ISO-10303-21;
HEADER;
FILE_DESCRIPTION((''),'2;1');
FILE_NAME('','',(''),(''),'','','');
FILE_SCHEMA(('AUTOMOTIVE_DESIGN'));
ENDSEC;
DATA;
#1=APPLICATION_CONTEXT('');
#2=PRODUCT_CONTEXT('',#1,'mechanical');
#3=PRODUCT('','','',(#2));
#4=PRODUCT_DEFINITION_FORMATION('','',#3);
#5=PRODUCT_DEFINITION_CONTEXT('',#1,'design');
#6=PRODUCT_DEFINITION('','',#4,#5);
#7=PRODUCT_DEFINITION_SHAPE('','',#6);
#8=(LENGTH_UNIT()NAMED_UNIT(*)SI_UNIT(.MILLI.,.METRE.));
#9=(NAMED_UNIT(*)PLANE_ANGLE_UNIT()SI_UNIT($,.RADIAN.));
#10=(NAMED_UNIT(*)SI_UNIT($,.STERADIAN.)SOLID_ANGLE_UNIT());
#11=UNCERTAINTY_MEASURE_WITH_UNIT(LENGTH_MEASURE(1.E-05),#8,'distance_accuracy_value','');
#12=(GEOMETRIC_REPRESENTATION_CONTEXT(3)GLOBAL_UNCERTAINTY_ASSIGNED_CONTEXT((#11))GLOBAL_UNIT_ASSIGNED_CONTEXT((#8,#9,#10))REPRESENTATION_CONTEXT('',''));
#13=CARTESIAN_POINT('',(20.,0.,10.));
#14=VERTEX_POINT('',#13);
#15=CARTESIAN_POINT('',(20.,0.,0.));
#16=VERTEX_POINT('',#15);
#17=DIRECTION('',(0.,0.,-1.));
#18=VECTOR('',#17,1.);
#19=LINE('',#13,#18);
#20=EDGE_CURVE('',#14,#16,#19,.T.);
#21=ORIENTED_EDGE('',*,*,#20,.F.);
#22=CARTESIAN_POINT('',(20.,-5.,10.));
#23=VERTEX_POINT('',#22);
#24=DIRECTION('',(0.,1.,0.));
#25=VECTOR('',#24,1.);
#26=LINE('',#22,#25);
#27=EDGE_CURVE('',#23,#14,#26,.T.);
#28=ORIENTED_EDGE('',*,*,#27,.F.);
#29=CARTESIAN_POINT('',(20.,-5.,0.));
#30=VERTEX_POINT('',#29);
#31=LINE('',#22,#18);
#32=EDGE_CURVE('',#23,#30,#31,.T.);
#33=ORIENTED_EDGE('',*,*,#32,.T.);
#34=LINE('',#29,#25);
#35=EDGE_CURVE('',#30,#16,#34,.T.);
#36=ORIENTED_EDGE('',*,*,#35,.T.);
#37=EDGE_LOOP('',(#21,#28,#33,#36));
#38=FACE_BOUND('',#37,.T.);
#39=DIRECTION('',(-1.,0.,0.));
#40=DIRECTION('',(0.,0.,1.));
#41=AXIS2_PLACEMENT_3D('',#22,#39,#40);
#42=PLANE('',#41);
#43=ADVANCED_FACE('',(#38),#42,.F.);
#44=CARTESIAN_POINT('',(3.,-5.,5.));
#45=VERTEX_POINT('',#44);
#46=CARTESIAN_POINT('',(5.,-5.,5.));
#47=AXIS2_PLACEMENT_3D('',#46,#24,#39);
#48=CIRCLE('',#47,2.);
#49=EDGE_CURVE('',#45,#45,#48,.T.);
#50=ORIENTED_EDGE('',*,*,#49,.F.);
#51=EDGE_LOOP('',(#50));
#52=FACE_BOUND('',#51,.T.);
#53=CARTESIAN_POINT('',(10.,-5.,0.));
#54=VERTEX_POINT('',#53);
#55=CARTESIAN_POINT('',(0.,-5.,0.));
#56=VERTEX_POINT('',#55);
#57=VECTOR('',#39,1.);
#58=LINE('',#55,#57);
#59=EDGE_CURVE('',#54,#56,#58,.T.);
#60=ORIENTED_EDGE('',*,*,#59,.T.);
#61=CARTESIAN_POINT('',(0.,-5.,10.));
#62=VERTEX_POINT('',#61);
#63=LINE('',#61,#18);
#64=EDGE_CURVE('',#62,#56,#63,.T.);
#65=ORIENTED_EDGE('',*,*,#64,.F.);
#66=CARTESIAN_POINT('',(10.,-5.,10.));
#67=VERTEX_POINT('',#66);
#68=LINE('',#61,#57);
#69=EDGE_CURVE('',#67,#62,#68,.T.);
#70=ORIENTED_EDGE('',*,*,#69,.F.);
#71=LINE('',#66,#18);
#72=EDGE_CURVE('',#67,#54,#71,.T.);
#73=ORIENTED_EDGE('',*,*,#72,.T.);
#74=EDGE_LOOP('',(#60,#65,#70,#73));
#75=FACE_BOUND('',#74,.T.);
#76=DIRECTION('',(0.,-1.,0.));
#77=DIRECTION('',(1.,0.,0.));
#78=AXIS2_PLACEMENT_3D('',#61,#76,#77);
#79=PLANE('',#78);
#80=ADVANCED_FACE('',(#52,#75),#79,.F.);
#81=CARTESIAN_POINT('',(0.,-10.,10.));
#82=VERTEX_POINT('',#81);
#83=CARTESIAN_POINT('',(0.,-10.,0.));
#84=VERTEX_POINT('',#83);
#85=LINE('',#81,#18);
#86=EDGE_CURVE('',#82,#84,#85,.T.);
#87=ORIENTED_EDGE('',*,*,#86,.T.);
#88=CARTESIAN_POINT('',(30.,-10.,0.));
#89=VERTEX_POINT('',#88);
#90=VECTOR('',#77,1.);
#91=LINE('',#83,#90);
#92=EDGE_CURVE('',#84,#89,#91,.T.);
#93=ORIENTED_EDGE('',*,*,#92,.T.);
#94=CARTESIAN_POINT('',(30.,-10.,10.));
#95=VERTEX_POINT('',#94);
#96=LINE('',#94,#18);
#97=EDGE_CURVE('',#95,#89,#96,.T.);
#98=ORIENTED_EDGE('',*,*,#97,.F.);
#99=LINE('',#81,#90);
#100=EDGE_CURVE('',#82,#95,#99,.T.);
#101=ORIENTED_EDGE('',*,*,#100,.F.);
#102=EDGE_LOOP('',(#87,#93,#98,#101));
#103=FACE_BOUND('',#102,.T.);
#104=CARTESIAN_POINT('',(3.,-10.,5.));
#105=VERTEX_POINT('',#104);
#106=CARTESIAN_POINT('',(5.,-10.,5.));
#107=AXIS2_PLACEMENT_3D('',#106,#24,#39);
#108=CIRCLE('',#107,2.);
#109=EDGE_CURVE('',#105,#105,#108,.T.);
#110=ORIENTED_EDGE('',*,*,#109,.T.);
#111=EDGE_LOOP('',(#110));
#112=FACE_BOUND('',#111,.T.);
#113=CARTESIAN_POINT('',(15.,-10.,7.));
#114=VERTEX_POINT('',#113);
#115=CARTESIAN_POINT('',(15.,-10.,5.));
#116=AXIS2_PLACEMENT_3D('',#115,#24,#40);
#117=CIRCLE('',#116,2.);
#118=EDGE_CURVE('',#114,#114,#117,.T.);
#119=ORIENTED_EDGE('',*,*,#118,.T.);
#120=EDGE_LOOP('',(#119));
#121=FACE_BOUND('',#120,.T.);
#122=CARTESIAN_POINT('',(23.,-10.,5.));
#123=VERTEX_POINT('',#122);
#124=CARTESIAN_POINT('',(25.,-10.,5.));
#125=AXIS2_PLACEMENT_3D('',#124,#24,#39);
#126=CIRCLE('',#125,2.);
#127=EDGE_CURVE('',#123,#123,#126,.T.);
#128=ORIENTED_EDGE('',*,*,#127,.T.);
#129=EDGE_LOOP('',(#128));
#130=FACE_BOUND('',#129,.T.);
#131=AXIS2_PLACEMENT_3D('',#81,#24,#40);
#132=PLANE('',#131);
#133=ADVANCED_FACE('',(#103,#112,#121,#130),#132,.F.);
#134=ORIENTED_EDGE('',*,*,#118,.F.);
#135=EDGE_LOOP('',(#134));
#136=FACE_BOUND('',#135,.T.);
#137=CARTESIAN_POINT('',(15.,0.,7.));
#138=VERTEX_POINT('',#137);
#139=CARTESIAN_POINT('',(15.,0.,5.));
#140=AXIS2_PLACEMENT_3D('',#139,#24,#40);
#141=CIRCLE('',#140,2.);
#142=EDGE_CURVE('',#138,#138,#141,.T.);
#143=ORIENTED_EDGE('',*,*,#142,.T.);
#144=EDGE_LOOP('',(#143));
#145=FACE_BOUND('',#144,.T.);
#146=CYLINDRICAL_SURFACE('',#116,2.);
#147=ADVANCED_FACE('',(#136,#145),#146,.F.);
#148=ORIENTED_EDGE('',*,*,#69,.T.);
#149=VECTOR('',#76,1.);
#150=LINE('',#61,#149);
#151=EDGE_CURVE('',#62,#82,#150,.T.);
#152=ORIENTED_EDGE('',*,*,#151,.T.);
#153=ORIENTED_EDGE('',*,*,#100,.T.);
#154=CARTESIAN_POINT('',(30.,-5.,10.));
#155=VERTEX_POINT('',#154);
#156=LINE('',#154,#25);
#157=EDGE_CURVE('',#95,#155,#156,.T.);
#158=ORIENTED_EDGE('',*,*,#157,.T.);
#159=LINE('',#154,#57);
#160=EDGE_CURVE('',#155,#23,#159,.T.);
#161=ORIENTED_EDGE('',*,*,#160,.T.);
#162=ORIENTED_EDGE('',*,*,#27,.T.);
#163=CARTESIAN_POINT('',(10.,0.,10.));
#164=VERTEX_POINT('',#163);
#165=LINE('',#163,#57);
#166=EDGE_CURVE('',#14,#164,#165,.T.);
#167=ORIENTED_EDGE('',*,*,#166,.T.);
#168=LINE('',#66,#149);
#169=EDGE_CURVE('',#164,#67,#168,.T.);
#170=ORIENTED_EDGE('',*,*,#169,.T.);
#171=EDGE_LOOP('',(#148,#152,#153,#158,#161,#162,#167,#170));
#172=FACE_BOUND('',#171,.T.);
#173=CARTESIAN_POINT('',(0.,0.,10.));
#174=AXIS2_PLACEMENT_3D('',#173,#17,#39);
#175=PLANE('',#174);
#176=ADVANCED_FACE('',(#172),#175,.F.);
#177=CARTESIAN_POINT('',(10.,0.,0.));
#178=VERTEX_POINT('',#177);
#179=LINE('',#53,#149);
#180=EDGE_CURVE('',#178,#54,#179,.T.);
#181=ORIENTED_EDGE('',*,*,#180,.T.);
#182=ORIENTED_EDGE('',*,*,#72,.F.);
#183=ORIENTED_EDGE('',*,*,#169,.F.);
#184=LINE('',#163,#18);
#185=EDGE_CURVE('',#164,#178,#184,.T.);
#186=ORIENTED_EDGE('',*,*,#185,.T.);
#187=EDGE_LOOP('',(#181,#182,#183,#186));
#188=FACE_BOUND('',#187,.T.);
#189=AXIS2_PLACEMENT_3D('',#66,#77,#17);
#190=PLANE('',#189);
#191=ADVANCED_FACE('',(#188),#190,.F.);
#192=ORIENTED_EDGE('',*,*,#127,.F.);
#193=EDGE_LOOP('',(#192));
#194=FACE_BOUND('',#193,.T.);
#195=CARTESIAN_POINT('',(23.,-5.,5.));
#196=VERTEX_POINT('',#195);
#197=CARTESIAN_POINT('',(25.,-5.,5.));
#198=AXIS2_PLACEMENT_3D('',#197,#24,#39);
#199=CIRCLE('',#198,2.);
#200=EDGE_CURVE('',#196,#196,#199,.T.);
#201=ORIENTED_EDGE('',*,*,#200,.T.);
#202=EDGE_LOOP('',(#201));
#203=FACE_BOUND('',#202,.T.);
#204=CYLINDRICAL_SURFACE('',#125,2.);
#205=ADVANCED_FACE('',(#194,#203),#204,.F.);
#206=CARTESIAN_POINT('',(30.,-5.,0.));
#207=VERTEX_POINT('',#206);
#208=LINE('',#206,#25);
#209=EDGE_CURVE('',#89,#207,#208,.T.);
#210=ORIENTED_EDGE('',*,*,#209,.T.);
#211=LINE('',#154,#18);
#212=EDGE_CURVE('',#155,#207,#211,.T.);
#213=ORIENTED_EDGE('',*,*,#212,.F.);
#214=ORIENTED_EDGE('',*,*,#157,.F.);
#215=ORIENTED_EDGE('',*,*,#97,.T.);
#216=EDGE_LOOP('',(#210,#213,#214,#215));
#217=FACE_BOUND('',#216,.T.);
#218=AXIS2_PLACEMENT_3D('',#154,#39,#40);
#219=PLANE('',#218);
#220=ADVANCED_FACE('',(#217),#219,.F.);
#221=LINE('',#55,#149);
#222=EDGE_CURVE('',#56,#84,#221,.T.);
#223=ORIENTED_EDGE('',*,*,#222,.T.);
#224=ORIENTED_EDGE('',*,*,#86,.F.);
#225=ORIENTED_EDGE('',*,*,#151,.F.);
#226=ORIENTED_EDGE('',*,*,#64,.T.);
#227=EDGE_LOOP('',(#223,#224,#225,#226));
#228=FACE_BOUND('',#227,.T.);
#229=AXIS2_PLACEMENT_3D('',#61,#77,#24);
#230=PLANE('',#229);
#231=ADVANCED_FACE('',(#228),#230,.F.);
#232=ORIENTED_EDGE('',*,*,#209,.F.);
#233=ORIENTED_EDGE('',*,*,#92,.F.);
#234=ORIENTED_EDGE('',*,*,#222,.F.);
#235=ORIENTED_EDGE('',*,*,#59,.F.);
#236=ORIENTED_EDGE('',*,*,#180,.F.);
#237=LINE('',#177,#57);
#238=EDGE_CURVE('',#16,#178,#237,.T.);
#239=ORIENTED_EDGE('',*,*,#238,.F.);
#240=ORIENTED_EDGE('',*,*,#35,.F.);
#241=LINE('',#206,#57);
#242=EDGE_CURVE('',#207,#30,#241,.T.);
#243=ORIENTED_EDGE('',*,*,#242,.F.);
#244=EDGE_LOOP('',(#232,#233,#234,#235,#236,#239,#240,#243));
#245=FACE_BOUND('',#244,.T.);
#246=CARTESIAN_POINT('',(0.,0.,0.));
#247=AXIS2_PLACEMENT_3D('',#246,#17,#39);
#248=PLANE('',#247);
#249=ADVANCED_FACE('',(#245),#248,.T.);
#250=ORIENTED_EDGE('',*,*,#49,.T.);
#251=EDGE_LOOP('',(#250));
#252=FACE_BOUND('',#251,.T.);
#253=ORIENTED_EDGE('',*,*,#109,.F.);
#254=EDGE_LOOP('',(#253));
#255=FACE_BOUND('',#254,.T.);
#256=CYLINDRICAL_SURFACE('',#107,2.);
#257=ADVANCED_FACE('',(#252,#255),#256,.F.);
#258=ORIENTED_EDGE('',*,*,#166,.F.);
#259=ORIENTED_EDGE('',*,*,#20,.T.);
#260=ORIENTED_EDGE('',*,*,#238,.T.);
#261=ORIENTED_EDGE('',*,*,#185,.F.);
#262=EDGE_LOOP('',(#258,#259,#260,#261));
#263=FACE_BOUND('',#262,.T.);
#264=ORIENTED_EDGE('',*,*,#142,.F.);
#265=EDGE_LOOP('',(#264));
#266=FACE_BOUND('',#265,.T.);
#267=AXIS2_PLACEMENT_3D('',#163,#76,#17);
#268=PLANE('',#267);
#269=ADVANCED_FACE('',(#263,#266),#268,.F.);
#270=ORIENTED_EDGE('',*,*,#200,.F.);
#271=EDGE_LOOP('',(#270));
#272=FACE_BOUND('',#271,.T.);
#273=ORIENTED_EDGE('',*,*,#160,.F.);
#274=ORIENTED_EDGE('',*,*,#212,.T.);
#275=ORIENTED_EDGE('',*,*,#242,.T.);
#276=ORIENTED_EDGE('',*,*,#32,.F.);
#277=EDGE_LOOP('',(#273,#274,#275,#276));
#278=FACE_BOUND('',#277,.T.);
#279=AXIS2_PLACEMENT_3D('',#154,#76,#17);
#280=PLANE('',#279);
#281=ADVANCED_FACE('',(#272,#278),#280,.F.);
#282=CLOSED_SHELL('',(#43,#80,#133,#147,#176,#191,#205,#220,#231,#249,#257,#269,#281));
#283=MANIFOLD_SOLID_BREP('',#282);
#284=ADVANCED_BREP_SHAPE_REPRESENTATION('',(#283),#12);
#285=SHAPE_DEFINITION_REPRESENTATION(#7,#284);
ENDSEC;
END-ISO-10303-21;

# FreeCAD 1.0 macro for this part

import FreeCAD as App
import Part
import Sketcher
from FreeCAD import Vector
Q = App.Units.Quantity

doc = App.newDocument("Part")
body = doc.addObject("PartDesign::Body", "Body")

sketch1 = body.newObject("Sketcher::SketchObject", "Sketch")
sketch1.AttachmentSupport = (doc.getObject("XY_Plane"), [""])
sketch1.MapMode = "FlatFace"
sketch1.addGeometry(Part.LineSegment(Vector(20, 0, 0), Vector(10, 0, 0)), False)
sketch1.addGeometry(Part.LineSegment(Vector(10, 0, 0), Vector(10, -5, 0)), False)
sketch1.addGeometry(Part.LineSegment(Vector(10, -5, 0), Vector(0, -5, 0)), False)
sketch1.addGeometry(Part.LineSegment(Vector(0, -5, 0), Vector(0, -10, 0)), False)
sketch1.addGeometry(Part.LineSegment(Vector(0, -10, 0), Vector(30, -10, 0)), False)
sketch1.addGeometry(Part.LineSegment(Vector(30, -10, 0), Vector(30, -5, 0)), False)
sketch1.addGeometry(Part.LineSegment(Vector(30, -5, 0), Vector(20, -5, 0)), False)
sketch1.addGeometry(Part.LineSegment(Vector(20, -5, 0), Vector(20, 0, 0)), False)
sketch1.addConstraint(Sketcher.Constraint("Coincident", 0, 2, 1, 1))
sketch1.addConstraint(Sketcher.Constraint("Coincident", 1, 2, 2, 1))
sketch1.addConstraint(Sketcher.Constraint("Coincident", 2, 2, 3, 1))
sketch1.addConstraint(Sketcher.Constraint("Coincident", 3, 2, 4, 1))
sketch1.addConstraint(Sketcher.Constraint("Coincident", 4, 2, 5, 1))
sketch1.addConstraint(Sketcher.Constraint("Coincident", 5, 2, 6, 1))
sketch1.addConstraint(Sketcher.Constraint("Coincident", 6, 2, 7, 1))
sketch1.addConstraint(Sketcher.Constraint("Coincident", 7, 2, 0, 1))
sketch1.addConstraint(Sketcher.Constraint("Horizontal", 0))
sketch1.addConstraint(Sketcher.Constraint("Vertical", 1))
sketch1.addConstraint(Sketcher.Constraint("Horizontal", 2))
sketch1.addConstraint(Sketcher.Constraint("Vertical", 3))
sketch1.addConstraint(Sketcher.Constraint("Horizontal", 4))
sketch1.addConstraint(Sketcher.Constraint("Vertical", 5))
sketch1.addConstraint(Sketcher.Constraint("Horizontal", 6))
sketch1.addConstraint(Sketcher.Constraint("Vertical", 7))
sketch1.addConstraint(Sketcher.Constraint("PointOnObject", 0, 2, -1))
sketch1.addConstraint(Sketcher.Constraint("PointOnObject", 2, 2, -2))
sketch1.addConstraint(Sketcher.Constraint("Horizontal", 2, 2, 5, 2))
sketch1.addConstraint(Sketcher.Constraint("Equal", 0, 2))
sketch1.addConstraint(Sketcher.Constraint("Equal", 2, 6))
sketch1.addConstraint(Sketcher.Constraint("Equal", 1, 3))
sketch1.addConstraint(Sketcher.Constraint("DistanceX", 0, 2, 0, 1, Q("10 mm")))
sketch1.addConstraint(Sketcher.Constraint("DistanceY", 1, 2, 1, 1, Q("5 mm")))
pad1 = body.newObject("PartDesign::Pad", "Pad")
pad1.Profile = sketch1
pad1.Length = 10

sketch2 = body.newObject("Sketcher::SketchObject", "Sketch001")
sketch2.AttachmentSupport = (doc.getObject("XZ_Plane"), [""])
sketch2.MapMode = "FlatFace"
sketch2.addGeometry(Part.Circle(Vector(15, 5, 0), Vector(0, 0, 1), 2), False)
sketch2.addConstraint(Sketcher.Constraint("Diameter", 0, Q("4 mm")))
sketch2.addConstraint(Sketcher.Constraint("DistanceX", -1, 1, 0, 3, Q("15 mm")))
sketch2.addConstraint(Sketcher.Constraint("DistanceY", -1, 1, 0, 3, Q("5 mm")))
pocket1 = body.newObject("PartDesign::Pocket", "Pocket")
pocket1.Profile = sketch2
pocket1.Type = "ThroughAll"
pocket1.Reversed = True

sketch3 = body.newObject("Sketcher::SketchObject", "Sketch002")
sketch3.AttachmentSupport = (doc.getObject("XZ_Plane"), [""])
sketch3.MapMode = "FlatFace"
sketch3.AttachmentOffset = App.Placement(Vector(0, 0, 5), App.Rotation())
sketch3.addGeometry(Part.Circle(Vector(5, 5, 0), Vector(0, 0, 1), 2), False)
sketch3.addGeometry(Part.Circle(Vector(25, 5, 0), Vector(0, 0, 1), 2), False)
sketch3.addConstraint(Sketcher.Constraint("Equal", 0, 1))
sketch3.addConstraint(Sketcher.Constraint("Horizontal", 0, 3, 1, 3))
sketch3.addConstraint(Sketcher.Constraint("Diameter", 0, Q("4 mm")))
sketch3.addConstraint(Sketcher.Constraint("DistanceX", -1, 1, 0, 3, Q("5 mm")))
sketch3.addConstraint(Sketcher.Constraint("DistanceY", -1, 1, 0, 3, Q("5 mm")))
sketch3.addConstraint(Sketcher.Constraint("DistanceX", -1, 1, 1, 3, Q("25 mm")))
pocket2 = body.newObject("PartDesign::Pocket", "Pocket001")
pocket2.Profile = sketch3
pocket2.Type = "ThroughAll"
pocket2.Reversed = True

doc.recompute()
